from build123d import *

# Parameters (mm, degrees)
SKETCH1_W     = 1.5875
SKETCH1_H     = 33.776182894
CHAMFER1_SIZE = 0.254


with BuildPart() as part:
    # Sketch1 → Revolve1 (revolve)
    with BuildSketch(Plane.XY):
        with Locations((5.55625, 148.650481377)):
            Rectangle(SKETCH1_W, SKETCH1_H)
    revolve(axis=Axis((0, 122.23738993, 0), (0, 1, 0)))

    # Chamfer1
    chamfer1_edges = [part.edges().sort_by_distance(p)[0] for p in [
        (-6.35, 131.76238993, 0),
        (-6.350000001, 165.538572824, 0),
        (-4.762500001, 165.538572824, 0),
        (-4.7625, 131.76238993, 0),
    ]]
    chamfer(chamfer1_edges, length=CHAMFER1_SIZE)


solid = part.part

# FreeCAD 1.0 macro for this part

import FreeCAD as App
import Part
import Sketcher
from FreeCAD import Vector
Q = App.Units.Quantity


def edges_at(feature, points):
    """Names of the edges that pass closest to the given points."""
    edges = feature.Shape.Edges
    near = lambda p: min(range(len(edges)), key=lambda i: edges[i].distToShape(Part.Vertex(*p))[0])
    return sorted({f"Edge{near(p) + 1}" for p in points})

doc = App.newDocument("Part")
body = doc.addObject("PartDesign::Body", "Body")

sketch1 = body.newObject("Sketcher::SketchObject", "Sketch")
sketch1.AttachmentSupport = (doc.getObject("XY_Plane"), [""])
sketch1.MapMode = "FlatFace"
sketch1.addGeometry([
    Part.LineSegment(Vector(4.8, 165.5, 0), Vector(4.8, 131.8, 0)),
    Part.LineSegment(Vector(4.8, 131.8, 0), Vector(6.3, 131.8, 0)),
    Part.LineSegment(Vector(6.3, 131.8, 0), Vector(6.3, 165.5, 0)),
    Part.LineSegment(Vector(6.3, 165.5, 0), Vector(4.8, 165.5, 0)),
], False)
sketch1.addConstraint([
    Sketcher.Constraint("Coincident", 0, 2, 1, 1),
    Sketcher.Constraint("Coincident", 1, 2, 2, 1),
    Sketcher.Constraint("Coincident", 2, 2, 3, 1),
    Sketcher.Constraint("Coincident", 3, 2, 0, 1),
    Sketcher.Constraint("Vertical", 0),
    Sketcher.Constraint("Horizontal", 1),
    Sketcher.Constraint("Vertical", 2),
    Sketcher.Constraint("Horizontal", 3),
    Sketcher.Constraint("DistanceX", 1, 1, 1, 2, Q("0.0625 in")),
    Sketcher.Constraint("DistanceX", -1, 1, 1, 2, Q("0.25 in")),
    Sketcher.Constraint("DistanceY", 0, 2, 0, 1, Q("33.776183 mm")),
    Sketcher.Constraint("DistanceY", -1, 1, 0, 2, Q("131.76239 mm")),
])
revolution = body.newObject("PartDesign::Revolution", "Revolution")
revolution.Profile = sketch1
revolution.ReferenceAxis = (sketch1, ["V_Axis"])
revolution.Angle = 360
doc.recompute()

chamfer = body.newObject("PartDesign::Chamfer", "Chamfer")
chamfer.Base = (revolution, edges_at(revolution, [
    (-6.35, 131.762, 0),
    (-6.35, 165.539, 0),
    (-4.763, 165.539, 0),
    (-4.763, 131.762, 0),
]))
chamfer.Size = Q("0.01 in")

doc.recompute()
